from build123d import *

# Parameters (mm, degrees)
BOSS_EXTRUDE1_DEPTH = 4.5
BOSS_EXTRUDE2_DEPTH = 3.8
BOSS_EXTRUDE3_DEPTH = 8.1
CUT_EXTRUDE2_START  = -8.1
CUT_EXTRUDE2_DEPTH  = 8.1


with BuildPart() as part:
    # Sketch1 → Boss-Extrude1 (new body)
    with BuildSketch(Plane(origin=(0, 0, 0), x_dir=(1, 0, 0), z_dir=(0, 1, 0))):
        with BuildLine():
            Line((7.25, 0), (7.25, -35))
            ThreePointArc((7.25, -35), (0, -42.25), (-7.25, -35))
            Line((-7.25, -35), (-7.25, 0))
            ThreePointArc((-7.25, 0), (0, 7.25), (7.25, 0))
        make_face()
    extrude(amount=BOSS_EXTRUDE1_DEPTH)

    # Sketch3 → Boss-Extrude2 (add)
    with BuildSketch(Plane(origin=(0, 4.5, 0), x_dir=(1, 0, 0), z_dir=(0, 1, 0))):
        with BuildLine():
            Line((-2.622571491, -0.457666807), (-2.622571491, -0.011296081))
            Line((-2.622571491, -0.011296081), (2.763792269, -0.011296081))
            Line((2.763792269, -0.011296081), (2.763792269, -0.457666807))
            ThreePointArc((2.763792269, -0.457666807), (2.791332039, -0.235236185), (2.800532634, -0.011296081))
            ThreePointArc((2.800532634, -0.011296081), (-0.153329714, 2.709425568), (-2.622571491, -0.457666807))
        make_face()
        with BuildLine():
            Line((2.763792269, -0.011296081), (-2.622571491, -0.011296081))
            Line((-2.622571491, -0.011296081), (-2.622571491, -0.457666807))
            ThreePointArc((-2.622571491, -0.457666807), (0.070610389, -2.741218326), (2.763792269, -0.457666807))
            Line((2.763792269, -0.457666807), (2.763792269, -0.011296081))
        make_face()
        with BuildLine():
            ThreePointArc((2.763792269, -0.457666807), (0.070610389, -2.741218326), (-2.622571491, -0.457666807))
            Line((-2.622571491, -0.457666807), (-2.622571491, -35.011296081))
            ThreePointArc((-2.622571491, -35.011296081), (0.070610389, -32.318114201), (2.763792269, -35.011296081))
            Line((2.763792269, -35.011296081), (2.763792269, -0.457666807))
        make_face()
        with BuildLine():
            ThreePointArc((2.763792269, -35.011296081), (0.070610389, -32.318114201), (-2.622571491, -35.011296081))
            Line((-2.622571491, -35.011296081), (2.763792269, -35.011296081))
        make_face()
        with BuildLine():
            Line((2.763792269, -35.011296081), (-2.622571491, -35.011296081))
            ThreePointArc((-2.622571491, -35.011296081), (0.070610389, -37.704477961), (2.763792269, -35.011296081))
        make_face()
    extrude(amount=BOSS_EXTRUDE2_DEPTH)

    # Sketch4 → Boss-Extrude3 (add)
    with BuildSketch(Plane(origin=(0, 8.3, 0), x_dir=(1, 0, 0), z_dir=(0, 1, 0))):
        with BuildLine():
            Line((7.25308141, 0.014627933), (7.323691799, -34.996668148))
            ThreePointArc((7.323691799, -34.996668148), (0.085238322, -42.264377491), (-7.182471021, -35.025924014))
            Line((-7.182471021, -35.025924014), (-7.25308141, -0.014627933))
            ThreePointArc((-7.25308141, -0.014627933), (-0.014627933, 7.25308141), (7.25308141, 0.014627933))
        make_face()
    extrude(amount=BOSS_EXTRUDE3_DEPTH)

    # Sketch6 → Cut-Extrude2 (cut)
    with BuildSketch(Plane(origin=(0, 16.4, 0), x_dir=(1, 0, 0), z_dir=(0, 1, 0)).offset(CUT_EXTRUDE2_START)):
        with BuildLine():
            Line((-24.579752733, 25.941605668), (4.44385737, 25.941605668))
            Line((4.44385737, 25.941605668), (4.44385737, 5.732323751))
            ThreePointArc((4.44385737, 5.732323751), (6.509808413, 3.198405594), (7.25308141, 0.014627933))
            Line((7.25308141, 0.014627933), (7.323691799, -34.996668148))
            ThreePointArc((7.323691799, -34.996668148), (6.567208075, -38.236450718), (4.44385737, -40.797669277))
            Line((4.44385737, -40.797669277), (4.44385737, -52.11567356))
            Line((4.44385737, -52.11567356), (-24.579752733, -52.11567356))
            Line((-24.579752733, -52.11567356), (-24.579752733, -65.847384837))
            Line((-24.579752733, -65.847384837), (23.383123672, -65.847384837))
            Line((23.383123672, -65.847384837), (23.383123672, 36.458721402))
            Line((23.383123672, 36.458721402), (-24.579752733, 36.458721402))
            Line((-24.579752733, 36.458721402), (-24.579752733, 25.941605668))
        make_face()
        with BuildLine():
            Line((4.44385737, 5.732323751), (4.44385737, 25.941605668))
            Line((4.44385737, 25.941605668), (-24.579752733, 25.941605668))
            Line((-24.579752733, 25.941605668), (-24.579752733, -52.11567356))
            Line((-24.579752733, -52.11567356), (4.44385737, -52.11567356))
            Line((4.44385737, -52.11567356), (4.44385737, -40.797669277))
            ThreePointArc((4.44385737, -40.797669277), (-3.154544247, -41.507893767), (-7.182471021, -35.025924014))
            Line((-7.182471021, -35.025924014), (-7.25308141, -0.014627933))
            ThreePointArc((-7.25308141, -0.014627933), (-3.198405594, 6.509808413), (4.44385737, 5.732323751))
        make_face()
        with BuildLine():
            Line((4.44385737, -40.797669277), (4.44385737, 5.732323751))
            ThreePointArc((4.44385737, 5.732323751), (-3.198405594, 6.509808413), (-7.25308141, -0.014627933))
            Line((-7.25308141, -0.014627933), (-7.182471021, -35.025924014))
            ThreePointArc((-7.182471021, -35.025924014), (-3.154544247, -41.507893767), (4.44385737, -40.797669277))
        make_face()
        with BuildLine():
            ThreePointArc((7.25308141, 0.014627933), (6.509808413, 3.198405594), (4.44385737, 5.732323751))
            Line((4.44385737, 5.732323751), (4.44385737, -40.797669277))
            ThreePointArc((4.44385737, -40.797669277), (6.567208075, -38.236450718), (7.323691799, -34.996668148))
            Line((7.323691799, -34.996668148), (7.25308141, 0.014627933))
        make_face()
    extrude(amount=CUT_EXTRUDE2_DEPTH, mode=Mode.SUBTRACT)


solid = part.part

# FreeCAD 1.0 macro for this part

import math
import FreeCAD as App
import Part
import Sketcher
from FreeCAD import Vector

doc = App.newDocument("Part")
body = doc.addObject("PartDesign::Body", "Body")

# Sketch on XZ plane
sketch1 = body.newObject("Sketcher::SketchObject", "Sketch")
sketch1.AttachmentSupport = (doc.getObject("XZ_Plane"), [""])
sketch1.MapMode = "FlatFace"
sketch1.addGeometry([
    Part.LineSegment(Vector(7.25, 35, 0), Vector(7.25, 0, 0)),
    Part.ArcOfCircle(Part.Circle(Vector(0, 0, 0), Vector(0, 0, 1), 7.25), math.radians(180), math.radians(360)),
    Part.LineSegment(Vector(-7.25, 0, 0), Vector(-7.25, 35, 0)),
    Part.ArcOfCircle(Part.Circle(Vector(0, 35, 0), Vector(0, 0, 1), 7.25), math.radians(0), math.radians(180)),
], False)
sketch1.addConstraint([
    Sketcher.Constraint("Tangent", 0, 2, 1, 2),
    Sketcher.Constraint("Tangent", 1, 1, 2, 1),
    Sketcher.Constraint("Tangent", 2, 2, 3, 2),
    Sketcher.Constraint("Tangent", 3, 1, 0, 1),
    Sketcher.Constraint("Vertical", 0),
    Sketcher.Constraint("Vertical", 2),
    Sketcher.Constraint("Coincident", 1, 3, -1, 1),
    Sketcher.Constraint("DistanceY", 0, 2, 0, 1, 35.0),
    Sketcher.Constraint("Radius", 1, 7.25),
])
pad1 = body.newObject("PartDesign::Pad", "Pad")
pad1.Profile = sketch1
pad1.Length = 4.5
pad1.Reversed = True

# Sketch on XZ plane
sketch2 = body.newObject("Sketcher::SketchObject", "Sketch001")
sketch2.AttachmentSupport = (doc.getObject("XZ_Plane"), [""])
sketch2.MapMode = "FlatFace"
sketch2.AttachmentOffset = App.Placement(Vector(0, 0, -4.5), App.Rotation())
sketch2.addGeometry([
    Part.ArcOfCircle(Part.Circle(Vector(0.07061, 35.011296, 0), Vector(0, 0, 1), 2.693182), math.radians(0), math.radians(180)),  # 0
    Part.LineSegment(Vector(2.763792, 35.011296, 0), Vector(2.763792, 0.457667, 0)),  # 1
    Part.ArcOfCircle(Part.Circle(Vector(0.070611, 0.011296, 0), Vector(0, 0, 1), 2.729922), math.radians(0), math.radians(9.410713)),  # 2
    Part.ArcOfCircle(Part.Circle(Vector(0.07061, 0.011296, 0), Vector(0, 0, 1), 2.729922), math.radians(170.589287), math.radians(360)),  # 3
    Part.LineSegment(Vector(-2.622571, 0.457667, 0), Vector(-2.622571, 35.011296, 0)),  # 4
], False)
sketch2.addConstraint([
    Sketcher.Constraint("Tangent", 0, 1, 1, 1),
    Sketcher.Constraint("Coincident", 1, 2, 2, 2),
    Sketcher.Constraint("Tangent", 2, 1, 3, 2),
    Sketcher.Constraint("Coincident", 3, 1, 4, 1),
    Sketcher.Constraint("Tangent", 4, 2, 0, 2),
    Sketcher.Constraint("Vertical", 1),
    Sketcher.Constraint("Vertical", 4),
    Sketcher.Constraint("Equal", 2, 3),
    Sketcher.Constraint("Horizontal", 3, 3, 2, 1),
    Sketcher.Constraint("Horizontal", 1, 2, 3, 1),
    Sketcher.Constraint("DistanceY", 2, 3, 0, 3, 35.0),
    Sketcher.Constraint("Radius", 0, 2.693182),
    Sketcher.Constraint("Radius", 2, 2.729922),
    Sketcher.Constraint("DistanceX", -1, 1, 0, 3, 0.07061),
    Sketcher.Constraint("DistanceY", -1, 1, 0, 3, 35.011296),
])
pad2 = body.newObject("PartDesign::Pad", "Pad001")
pad2.Profile = sketch2
pad2.Length = 3.8
pad2.Reversed = True

# Sketch on XZ plane
sketch3 = body.newObject("Sketcher::SketchObject", "Sketch002")
sketch3.AttachmentSupport = (doc.getObject("XZ_Plane"), [""])
sketch3.MapMode = "FlatFace"
sketch3.AttachmentOffset = App.Placement(Vector(0, 0, -8.3), App.Rotation())
sketch3.addGeometry([
    Part.LineSegment(Vector(7.323692, 34.996668, 0), Vector(7.253081, -0.014628, 0)),
    Part.ArcOfCircle(Part.Circle(Vector(0, 0, 0), Vector(0, 0, 1), 7.253096), math.radians(179.884447), math.radians(359.884447)),
    Part.LineSegment(Vector(-7.253081, 0.014628, 0), Vector(-7.182471, 35.025924, 0)),
    Part.ArcOfCircle(Part.Circle(Vector(0.07061, 35.011296, 0), Vector(0, 0, 1), 7.253096), math.radians(-0.115553), math.radians(179.884447)),
], False)
sketch3.addConstraint([
    Sketcher.Constraint("Tangent", 0, 2, 1, 2),
    Sketcher.Constraint("Tangent", 1, 1, 2, 1),
    Sketcher.Constraint("Tangent", 2, 2, 3, 2),
    Sketcher.Constraint("Tangent", 3, 1, 0, 1),
    Sketcher.Constraint("Coincident", 1, 3, -1, 1),
    Sketcher.Constraint("Equal", 1, 3),
    Sketcher.Constraint("Radius", 1, 7.253096),
    Sketcher.Constraint("DistanceX", -1, 1, 3, 3, 0.07061),
    Sketcher.Constraint("DistanceY", -1, 1, 3, 1, 34.996668),
])
pad3 = body.newObject("PartDesign::Pad", "Pad002")
pad3.Profile = sketch3
pad3.Length = 8.1
pad3.Reversed = True

# Sketch on XZ plane
sketch4 = body.newObject("Sketcher::SketchObject", "Sketch003")
sketch4.AttachmentSupport = (doc.getObject("XZ_Plane"), [""])
sketch4.MapMode = "FlatFace"
sketch4.AttachmentOffset = App.Placement(Vector(0, 0, -8.3), App.Rotation())
sketch4.addGeometry([
    Part.LineSegment(Vector(-24.579753, 65.847385, 0), Vector(23.383124, 65.847385, 0)),
    Part.LineSegment(Vector(23.383124, 65.847385, 0), Vector(23.383124, -36.458721, 0)),
    Part.LineSegment(Vector(23.383124, -36.458721, 0), Vector(-24.579753, -36.458721, 0)),
    Part.LineSegment(Vector(-24.579753, -36.458721, 0), Vector(-24.579753, 65.847385, 0)),
], False)
sketch4.addConstraint([
    Sketcher.Constraint("Coincident", 0, 2, 1, 1),
    Sketcher.Constraint("Coincident", 1, 2, 2, 1),
    Sketcher.Constraint("Coincident", 2, 2, 3, 1),
    Sketcher.Constraint("Coincident", 3, 2, 0, 1),
    Sketcher.Constraint("Horizontal", 0),
    Sketcher.Constraint("Vertical", 1),
    Sketcher.Constraint("Horizontal", 2),
    Sketcher.Constraint("Vertical", 3),
    Sketcher.Constraint("DistanceX", 0, 1, 0, 2, 47.962876),
    Sketcher.Constraint("DistanceY", 1, 2, 1, 1, 102.306106),
    Sketcher.Constraint("DistanceY", 1, 2, -1, 1, 36.458721),
    Sketcher.Constraint("DistanceX", -1, 1, 0, 2, 23.383124),
])
pocket1 = body.newObject("PartDesign::Pocket", "Pocket")
pocket1.Profile = sketch4
pocket1.Length = 8.1

doc.recompute()
